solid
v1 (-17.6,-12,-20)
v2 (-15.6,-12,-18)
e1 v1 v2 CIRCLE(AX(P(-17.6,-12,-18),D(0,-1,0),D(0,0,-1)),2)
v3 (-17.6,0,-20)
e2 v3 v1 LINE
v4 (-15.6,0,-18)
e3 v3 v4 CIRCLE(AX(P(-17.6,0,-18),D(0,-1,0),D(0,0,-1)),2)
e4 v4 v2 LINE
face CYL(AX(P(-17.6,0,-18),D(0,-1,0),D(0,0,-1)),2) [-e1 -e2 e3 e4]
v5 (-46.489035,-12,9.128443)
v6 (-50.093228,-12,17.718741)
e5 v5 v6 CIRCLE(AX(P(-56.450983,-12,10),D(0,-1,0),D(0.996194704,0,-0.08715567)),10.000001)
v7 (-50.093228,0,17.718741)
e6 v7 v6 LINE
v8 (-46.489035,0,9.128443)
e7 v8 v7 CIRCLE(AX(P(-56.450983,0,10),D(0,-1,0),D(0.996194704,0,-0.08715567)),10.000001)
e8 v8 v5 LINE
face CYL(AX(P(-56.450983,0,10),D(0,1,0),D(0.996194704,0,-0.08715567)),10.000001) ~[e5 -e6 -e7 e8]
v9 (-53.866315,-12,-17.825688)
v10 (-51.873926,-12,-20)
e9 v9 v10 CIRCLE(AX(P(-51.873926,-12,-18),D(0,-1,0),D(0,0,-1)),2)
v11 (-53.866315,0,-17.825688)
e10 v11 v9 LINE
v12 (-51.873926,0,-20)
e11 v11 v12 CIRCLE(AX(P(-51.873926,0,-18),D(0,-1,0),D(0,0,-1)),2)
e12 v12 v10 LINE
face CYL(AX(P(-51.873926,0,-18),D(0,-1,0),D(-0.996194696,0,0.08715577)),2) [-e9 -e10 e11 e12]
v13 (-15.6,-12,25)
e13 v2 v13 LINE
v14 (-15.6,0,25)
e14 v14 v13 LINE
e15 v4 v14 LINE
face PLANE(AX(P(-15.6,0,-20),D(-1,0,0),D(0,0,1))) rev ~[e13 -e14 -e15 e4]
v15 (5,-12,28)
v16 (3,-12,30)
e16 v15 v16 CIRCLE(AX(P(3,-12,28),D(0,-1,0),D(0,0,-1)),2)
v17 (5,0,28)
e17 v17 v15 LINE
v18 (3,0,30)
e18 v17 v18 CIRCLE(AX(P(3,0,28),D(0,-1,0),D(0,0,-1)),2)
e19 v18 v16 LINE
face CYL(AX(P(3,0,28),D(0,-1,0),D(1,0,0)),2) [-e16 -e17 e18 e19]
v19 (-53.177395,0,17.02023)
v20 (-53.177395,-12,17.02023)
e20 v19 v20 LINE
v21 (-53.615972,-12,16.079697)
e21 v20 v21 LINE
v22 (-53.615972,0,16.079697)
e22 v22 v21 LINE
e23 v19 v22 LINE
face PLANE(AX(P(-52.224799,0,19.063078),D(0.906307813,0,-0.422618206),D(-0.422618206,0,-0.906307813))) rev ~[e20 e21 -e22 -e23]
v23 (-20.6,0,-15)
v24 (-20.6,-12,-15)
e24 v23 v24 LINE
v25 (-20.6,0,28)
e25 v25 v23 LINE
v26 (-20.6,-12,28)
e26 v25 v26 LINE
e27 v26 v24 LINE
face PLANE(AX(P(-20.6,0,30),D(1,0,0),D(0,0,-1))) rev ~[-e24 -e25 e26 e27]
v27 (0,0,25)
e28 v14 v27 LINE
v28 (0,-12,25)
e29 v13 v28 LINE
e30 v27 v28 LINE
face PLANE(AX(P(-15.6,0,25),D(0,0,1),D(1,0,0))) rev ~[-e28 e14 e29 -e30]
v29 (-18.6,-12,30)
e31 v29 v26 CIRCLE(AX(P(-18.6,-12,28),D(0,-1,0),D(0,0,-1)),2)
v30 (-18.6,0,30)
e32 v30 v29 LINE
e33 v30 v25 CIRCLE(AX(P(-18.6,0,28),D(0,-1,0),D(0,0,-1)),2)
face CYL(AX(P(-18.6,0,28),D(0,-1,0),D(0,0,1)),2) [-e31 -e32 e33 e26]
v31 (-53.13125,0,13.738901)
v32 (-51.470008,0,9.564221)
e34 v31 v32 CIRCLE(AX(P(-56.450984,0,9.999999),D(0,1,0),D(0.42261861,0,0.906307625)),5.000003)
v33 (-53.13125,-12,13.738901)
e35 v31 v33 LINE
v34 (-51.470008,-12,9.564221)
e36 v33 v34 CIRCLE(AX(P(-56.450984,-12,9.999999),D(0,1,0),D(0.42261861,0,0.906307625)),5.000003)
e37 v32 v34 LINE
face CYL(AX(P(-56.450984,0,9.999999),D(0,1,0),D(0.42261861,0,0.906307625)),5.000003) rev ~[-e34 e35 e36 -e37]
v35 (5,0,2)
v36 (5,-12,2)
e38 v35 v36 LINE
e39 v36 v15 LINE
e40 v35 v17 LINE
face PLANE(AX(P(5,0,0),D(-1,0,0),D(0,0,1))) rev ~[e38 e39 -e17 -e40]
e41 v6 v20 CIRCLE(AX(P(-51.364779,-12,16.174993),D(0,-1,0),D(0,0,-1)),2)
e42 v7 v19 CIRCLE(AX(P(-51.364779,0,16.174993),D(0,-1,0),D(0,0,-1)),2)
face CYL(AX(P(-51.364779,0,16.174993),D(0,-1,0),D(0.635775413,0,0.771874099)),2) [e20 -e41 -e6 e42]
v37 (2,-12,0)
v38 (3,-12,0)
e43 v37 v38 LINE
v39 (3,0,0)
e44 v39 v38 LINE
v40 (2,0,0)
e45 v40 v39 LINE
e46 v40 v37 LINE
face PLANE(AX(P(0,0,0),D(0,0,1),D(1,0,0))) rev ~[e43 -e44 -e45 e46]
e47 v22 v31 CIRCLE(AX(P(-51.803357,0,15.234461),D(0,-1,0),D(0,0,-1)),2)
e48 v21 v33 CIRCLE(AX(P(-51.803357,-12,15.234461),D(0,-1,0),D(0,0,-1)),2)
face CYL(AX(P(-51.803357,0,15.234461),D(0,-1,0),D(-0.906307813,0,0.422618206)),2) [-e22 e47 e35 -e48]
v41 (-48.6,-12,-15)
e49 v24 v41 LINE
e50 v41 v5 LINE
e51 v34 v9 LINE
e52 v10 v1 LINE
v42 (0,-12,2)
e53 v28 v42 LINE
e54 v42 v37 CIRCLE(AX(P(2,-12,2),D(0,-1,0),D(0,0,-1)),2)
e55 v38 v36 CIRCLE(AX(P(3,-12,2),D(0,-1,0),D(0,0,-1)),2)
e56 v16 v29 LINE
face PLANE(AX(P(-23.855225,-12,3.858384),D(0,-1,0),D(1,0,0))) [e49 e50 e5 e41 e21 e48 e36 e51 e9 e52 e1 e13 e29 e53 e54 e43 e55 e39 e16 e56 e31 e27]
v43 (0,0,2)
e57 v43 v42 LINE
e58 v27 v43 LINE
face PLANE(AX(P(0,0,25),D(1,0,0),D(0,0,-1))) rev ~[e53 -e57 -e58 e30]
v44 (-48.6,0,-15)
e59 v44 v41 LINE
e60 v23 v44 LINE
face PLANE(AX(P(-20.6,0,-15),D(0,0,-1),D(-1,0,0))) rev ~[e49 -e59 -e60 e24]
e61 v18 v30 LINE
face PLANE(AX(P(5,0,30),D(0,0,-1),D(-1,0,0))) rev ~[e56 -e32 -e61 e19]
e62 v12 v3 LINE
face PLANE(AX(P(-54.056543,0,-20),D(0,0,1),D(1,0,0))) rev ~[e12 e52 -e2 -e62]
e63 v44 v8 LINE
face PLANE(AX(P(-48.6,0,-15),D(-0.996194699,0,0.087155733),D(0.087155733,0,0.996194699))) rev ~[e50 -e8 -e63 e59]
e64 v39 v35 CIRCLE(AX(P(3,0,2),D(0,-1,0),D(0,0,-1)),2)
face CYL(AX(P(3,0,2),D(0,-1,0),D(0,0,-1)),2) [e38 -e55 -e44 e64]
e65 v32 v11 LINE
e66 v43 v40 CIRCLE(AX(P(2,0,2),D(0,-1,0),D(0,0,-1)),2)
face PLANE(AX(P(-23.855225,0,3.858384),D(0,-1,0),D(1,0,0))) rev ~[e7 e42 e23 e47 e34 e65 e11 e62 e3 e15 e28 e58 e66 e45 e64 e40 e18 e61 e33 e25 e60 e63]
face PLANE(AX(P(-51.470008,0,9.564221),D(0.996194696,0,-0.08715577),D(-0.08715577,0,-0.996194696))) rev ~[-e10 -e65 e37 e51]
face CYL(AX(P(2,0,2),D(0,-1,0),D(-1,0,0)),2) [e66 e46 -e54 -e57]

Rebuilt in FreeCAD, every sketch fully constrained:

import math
import FreeCAD as App
import Part
import Sketcher
from FreeCAD import Vector
Q = App.Units.Quantity


def edges_at(feature, points):
    """Names of the edges that pass closest to the given points."""
    edges = feature.Shape.Edges
    near = lambda p: min(range(len(edges)), key=lambda i: edges[i].distToShape(Part.Vertex(*p))[0])
    return sorted({f"Edge{near(p) + 1}" for p in points})

doc = App.newDocument("Part")
params = doc.addObject("Spreadsheet::Sheet", "Params")
for row, (alias, value) in enumerate([
    ("sketch1_radius", "10.000001 mm"),
    ("sketch1_width", "5 mm"),
    ("sketch1_width2", "28 mm"),
    ("sketch1_height", "25 mm"),
    ("sketch1_height2", "30 mm"),
    ("pad1_length", "12 mm"),
    ("fillet_radius", "2 mm"),
], start=1):
    params.set(f"A{row}", alias)
    params.set(f"B{row}", "=" + value)
    params.setAlias(f"B{row}", alias)

body = doc.addObject("PartDesign::Body", "Body")

# Sketch on XZ plane
sketch1 = body.newObject("Sketcher::SketchObject", "Sketch")
sketch1.AttachmentSupport = (doc.getObject("XZ_Plane"), [""])
sketch1.MapMode = "FlatFace"
sketch1.addGeometry(Part.LineSegment(Vector(0, 25, 0), Vector(0, 0, 0)), False)
sketch1.addGeometry(Part.LineSegment(Vector(0, 0, 0), Vector(5, 0, 0)), False)
sketch1.addGeometry(Part.LineSegment(Vector(5, 0, 0), Vector(5, 30, 0)), False)
sketch1.addGeometry(Part.LineSegment(Vector(5, 30, 0), Vector(-20.6, 30, 0)), False)
sketch1.addGeometry(Part.LineSegment(Vector(-20.6, 30, 0), Vector(-20.6, -15, 0)), False)
sketch1.addGeometry(Part.LineSegment(Vector(-20.6, -15, 0), Vector(-48.6, -15, 0)), False)
sketch1.addGeometry(Part.LineSegment(Vector(-48.6, -15, 0), Vector(-46.5, 9.1, 0)), False)
sketch1.addGeometry(Part.ArcOfCircle(Part.Circle(Vector(-56.5, 10, 0), Vector(0, 0, 1), 10), math.radians(-5), math.radians(65)), False)
sketch1.addGeometry(Part.LineSegment(Vector(-52.2, 19.1, 0), Vector(-54.3, 14.5, 0)), False)
sketch1.addGeometry(Part.ArcOfCircle(Part.Circle(Vector(-56.5, 10, 0), Vector(0, 0, 1), 5), math.radians(-5), math.radians(65)), False)
sketch1.addGeometry(Part.LineSegment(Vector(-51.5, 9.6, 0), Vector(-54.1, -20, 0)), False)
sketch1.addGeometry(Part.LineSegment(Vector(-54.1, -20, 0), Vector(-15.6, -20, 0)), False)
sketch1.addGeometry(Part.LineSegment(Vector(-15.6, -20, 0), Vector(-15.6, 25, 0)), False)
sketch1.addGeometry(Part.LineSegment(Vector(-15.6, 25, 0), Vector(0, 25, 0)), False)
sketch1.addConstraint(Sketcher.Constraint("Coincident", 0, 2, 1, 1))
sketch1.addConstraint(Sketcher.Constraint("Coincident", 1, 2, 2, 1))
sketch1.addConstraint(Sketcher.Constraint("Coincident", 2, 2, 3, 1))
sketch1.addConstraint(Sketcher.Constraint("Coincident", 3, 2, 4, 1))
sketch1.addConstraint(Sketcher.Constraint("Coincident", 4, 2, 5, 1))
sketch1.addConstraint(Sketcher.Constraint("Coincident", 5, 2, 6, 1))
sketch1.addConstraint(Sketcher.Constraint("Tangent", 6, 2, 7, 1))
sketch1.addConstraint(Sketcher.Constraint("Coincident", 7, 2, 8, 1))
sketch1.addConstraint(Sketcher.Constraint("Coincident", 8, 2, 9, 2))
sketch1.addConstraint(Sketcher.Constraint("Tangent", 9, 1, 10, 1))
sketch1.addConstraint(Sketcher.Constraint("Coincident", 10, 2, 11, 1))
sketch1.addConstraint(Sketcher.Constraint("Coincident", 11, 2, 12, 1))
sketch1.addConstraint(Sketcher.Constraint("Coincident", 12, 2, 13, 1))
sketch1.addConstraint(Sketcher.Constraint("Coincident", 13, 2, 0, 1))
sketch1.addConstraint(Sketcher.Constraint("Vertical", 0))
sketch1.addConstraint(Sketcher.Constraint("Horizontal", 1))
sketch1.addConstraint(Sketcher.Constraint("Vertical", 2))
sketch1.addConstraint(Sketcher.Constraint("Horizontal", 3))
sketch1.addConstraint(Sketcher.Constraint("Vertical", 4))
sketch1.addConstraint(Sketcher.Constraint("Horizontal", 5))
sketch1.addConstraint(Sketcher.Constraint("Horizontal", 11))
sketch1.addConstraint(Sketcher.Constraint("Vertical", 12))
sketch1.addConstraint(Sketcher.Constraint("Horizontal", 13))
sketch1.addConstraint(Sketcher.Constraint("Coincident", 0, 2, -1, 1))
sketch1.addConstraint(Sketcher.Constraint("Coincident", 9, 3, 7, 3))
sketch1.addConstraint(Sketcher.Constraint("Parallel", 6, 10))
sketch1.addConstraint(Sketcher.Constraint("Equal", 4, 12))
sketch1.addConstraint(Sketcher.Constraint("Radius", 7, 10.000001))
sketch1.addConstraint(Sketcher.Constraint("DistanceX", 1, 1, 1, 2, 5.0))
sketch1.addConstraint(Sketcher.Constraint("DistanceX", 5, 2, 5, 1, 28.0))
sketch1.addConstraint(Sketcher.Constraint("DistanceY", 0, 2, 0, 1, 25.0))
sketch1.addConstraint(Sketcher.Constraint("DistanceY", 2, 1, 2, 2, 30.0))
sketch1.addConstraint(Sketcher.Constraint("DistanceY", 4, 2, 4, 1, 45.0))
sketch1.addConstraint(Sketcher.Constraint("Angle", 6, Q("85.000001 deg")))
sketch1.addConstraint(Sketcher.Constraint("Angle", 8, Q("-114.999996 deg")))
sketch1.addConstraint(Sketcher.Constraint("Distance", 8, 5.0))
sketch1.addConstraint(Sketcher.Constraint("DistanceX", 3, 2, 3, 1, 25.6))
sketch1.addConstraint(Sketcher.Constraint("DistanceX", 13, 1, 13, 2, 15.6))
sketch1.addConstraint(Sketcher.Constraint("DistanceY", -1, 1, 7, 3, 10.0))
sketch1.addConstraint(Sketcher.Constraint("DistanceX", 7, 2, -1, 1, 52.224799))
sketch1.setExpression("Constraints[27]", "Params.sketch1_radius")
sketch1.setExpression("Constraints[28]", "Params.sketch1_width")
sketch1.setExpression("Constraints[29]", "Params.sketch1_width2")
sketch1.setExpression("Constraints[30]", "Params.sketch1_height")
sketch1.setExpression("Constraints[31]", "Params.sketch1_height2")
pad1 = body.newObject("PartDesign::Pad", "Pad")
pad1.Profile = sketch1
pad1.setExpression("Length", "Params.pad1_length")
doc.recompute()

fillet = body.newObject("PartDesign::Fillet", "Fillet")
fillet.Base = (pad1, edges_at(pad1, [
    (-52.225, -6, 19.063),
    (-54.338, -6, 14.532),
    (-54.057, -6, -20),
    (-15.6, -6, -20),
    (5, -6, 30),
    (-20.6, -6, 30),
    (0, -6, 0),
    (5, -6, 0),
]))
fillet.setExpression("Radius", "Params.fillet_radius")

doc.recompute()
